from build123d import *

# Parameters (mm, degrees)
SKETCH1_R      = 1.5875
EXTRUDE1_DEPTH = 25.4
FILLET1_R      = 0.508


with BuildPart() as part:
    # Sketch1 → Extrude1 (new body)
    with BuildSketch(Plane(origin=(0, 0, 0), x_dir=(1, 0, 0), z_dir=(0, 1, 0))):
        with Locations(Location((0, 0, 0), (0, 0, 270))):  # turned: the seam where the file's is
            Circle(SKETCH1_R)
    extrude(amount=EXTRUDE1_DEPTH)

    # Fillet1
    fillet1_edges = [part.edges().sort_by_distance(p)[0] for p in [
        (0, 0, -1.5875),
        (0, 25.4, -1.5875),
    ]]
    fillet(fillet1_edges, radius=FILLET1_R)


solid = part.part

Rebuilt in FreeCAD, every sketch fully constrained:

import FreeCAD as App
import Part
import Sketcher
Q = App.Units.Quantity


def edges_at(feature, points):
    """Names of the edges that pass closest to the given points."""
    edges = feature.Shape.Edges
    near = lambda p: min(range(len(edges)), key=lambda i: edges[i].distToShape(Part.Vertex(*p))[0])
    return sorted({f"Edge{near(p) + 1}" for p in points})

doc = App.newDocument("Part")
body = doc.addObject("PartDesign::Body", "Body")

sketch1 = body.newObject("Sketcher::SketchObject", "Sketch")
sketch1.AttachmentSupport = (doc.getObject("XZ_Plane"), [""])
sketch1.MapMode = "FlatFace"
sketch1.addGeometry(Part.Circle(App.Vector(0, 0, 0), App.Vector(0, 0, 1), 1.5875), False)
sketch1.addConstraint([
    Sketcher.Constraint("Coincident", 0, 3, -1, 1),
    Sketcher.Constraint("Diameter", 0, Q("0.125 in")),
])
pad1 = body.newObject("PartDesign::Pad", "Pad")
pad1.Profile = sketch1
pad1.Length = Q("1 in")
pad1.Reversed = True
doc.recompute()

fillet = body.newObject("PartDesign::Fillet", "Fillet")
fillet.Base = (pad1, edges_at(pad1, [(0, 0, -1.587), (0, 25.4, -1.587)]))
fillet.Radius = Q("0.02 in")

doc.recompute()
